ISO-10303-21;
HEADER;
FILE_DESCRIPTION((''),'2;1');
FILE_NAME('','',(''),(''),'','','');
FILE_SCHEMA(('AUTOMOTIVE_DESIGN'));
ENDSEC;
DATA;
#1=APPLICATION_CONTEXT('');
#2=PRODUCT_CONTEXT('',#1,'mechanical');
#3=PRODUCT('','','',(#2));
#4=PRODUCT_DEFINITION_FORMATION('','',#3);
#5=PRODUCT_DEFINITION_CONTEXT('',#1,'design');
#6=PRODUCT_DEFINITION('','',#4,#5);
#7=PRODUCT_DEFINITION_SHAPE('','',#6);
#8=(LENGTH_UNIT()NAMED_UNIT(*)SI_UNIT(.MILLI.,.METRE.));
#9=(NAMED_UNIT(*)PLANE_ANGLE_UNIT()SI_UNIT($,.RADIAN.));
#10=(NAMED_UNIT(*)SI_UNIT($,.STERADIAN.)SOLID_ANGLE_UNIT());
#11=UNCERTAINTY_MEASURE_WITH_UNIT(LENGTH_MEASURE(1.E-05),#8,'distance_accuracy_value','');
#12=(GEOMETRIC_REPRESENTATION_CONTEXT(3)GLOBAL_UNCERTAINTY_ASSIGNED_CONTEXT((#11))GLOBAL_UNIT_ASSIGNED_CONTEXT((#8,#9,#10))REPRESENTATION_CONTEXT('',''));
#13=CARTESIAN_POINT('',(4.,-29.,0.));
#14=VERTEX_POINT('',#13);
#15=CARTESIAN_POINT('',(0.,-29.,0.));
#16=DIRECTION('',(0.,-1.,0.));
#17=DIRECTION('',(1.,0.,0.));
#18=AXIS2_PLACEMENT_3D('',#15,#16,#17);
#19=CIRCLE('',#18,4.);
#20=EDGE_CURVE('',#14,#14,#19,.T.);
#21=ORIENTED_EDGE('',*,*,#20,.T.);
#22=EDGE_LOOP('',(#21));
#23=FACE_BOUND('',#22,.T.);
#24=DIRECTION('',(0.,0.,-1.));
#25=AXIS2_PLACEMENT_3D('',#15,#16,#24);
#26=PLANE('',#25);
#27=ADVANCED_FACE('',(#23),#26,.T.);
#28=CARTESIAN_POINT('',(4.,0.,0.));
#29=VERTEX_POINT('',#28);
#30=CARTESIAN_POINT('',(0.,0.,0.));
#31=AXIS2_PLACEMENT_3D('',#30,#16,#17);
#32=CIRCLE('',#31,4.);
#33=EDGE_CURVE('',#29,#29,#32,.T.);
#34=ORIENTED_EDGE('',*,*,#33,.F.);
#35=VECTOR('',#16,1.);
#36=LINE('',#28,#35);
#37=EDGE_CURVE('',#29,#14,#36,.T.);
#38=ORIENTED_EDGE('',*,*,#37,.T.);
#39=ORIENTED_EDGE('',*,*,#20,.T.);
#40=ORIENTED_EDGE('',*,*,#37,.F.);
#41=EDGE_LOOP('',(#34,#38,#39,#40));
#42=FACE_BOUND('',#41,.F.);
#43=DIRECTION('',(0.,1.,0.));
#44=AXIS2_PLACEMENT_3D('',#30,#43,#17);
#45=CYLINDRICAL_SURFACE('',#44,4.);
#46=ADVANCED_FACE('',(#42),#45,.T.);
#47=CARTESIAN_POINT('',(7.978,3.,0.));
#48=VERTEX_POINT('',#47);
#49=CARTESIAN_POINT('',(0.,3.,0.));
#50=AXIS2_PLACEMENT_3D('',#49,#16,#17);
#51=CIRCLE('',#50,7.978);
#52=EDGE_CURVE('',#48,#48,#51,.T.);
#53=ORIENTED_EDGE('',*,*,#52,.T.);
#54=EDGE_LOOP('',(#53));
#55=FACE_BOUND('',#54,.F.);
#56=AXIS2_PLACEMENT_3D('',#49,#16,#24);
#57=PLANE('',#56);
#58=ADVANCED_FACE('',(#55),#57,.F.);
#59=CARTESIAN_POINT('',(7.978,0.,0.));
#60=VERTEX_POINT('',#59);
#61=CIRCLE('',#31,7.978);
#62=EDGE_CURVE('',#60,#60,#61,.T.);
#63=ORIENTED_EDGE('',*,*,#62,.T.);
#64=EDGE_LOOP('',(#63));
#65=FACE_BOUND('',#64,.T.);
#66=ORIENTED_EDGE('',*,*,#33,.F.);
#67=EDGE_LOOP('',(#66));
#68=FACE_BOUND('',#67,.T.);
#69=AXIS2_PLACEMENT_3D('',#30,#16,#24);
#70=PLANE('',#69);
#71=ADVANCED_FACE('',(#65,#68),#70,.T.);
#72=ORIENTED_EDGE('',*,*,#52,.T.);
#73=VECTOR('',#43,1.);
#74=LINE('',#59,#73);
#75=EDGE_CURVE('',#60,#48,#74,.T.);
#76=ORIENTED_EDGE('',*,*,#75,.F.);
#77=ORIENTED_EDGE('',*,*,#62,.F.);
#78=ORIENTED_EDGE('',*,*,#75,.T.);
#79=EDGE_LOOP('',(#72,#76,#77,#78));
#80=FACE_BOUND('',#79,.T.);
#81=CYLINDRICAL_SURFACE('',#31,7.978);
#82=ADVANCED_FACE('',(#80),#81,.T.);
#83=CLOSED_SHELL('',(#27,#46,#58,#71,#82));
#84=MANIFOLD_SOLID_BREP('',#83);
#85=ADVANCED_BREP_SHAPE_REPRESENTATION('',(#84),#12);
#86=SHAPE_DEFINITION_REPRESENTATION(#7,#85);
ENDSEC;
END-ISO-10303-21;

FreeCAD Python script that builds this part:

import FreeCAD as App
import Part
import Sketcher

doc = App.newDocument("Part")
body = doc.addObject("PartDesign::Body", "Body")

# Sketch on XZ plane
sketch1 = body.newObject("Sketcher::SketchObject", "Sketch")
sketch1.AttachmentSupport = (doc.getObject("XZ_Plane"), [""])
sketch1.MapMode = "FlatFace"
sketch1.addGeometry(Part.Circle(App.Vector(0, 0, 0), App.Vector(0, 0, 1), 7.978), False)
sketch1.addConstraint([
    Sketcher.Constraint("Coincident", 0, 3, -1, 1),
    Sketcher.Constraint("Diameter", 0, 15.956),
])
pad1 = body.newObject("PartDesign::Pad", "Pad")
pad1.Profile = sketch1
pad1.Length = 3
pad1.Reversed = True

# Sketch on XZ plane
sketch2 = body.newObject("Sketcher::SketchObject", "Sketch001")
sketch2.AttachmentSupport = (doc.getObject("XZ_Plane"), [""])
sketch2.MapMode = "FlatFace"
sketch2.addGeometry(Part.Circle(App.Vector(0, 0, 0), App.Vector(0, 0, 1), 4), False)
sketch2.addConstraint([
    Sketcher.Constraint("Coincident", 0, 3, -1, 1),
    Sketcher.Constraint("Diameter", 0, 8.0),
])
pad2 = body.newObject("PartDesign::Pad", "Pad001")
pad2.Profile = sketch2
pad2.Length = 29

doc.recompute()
